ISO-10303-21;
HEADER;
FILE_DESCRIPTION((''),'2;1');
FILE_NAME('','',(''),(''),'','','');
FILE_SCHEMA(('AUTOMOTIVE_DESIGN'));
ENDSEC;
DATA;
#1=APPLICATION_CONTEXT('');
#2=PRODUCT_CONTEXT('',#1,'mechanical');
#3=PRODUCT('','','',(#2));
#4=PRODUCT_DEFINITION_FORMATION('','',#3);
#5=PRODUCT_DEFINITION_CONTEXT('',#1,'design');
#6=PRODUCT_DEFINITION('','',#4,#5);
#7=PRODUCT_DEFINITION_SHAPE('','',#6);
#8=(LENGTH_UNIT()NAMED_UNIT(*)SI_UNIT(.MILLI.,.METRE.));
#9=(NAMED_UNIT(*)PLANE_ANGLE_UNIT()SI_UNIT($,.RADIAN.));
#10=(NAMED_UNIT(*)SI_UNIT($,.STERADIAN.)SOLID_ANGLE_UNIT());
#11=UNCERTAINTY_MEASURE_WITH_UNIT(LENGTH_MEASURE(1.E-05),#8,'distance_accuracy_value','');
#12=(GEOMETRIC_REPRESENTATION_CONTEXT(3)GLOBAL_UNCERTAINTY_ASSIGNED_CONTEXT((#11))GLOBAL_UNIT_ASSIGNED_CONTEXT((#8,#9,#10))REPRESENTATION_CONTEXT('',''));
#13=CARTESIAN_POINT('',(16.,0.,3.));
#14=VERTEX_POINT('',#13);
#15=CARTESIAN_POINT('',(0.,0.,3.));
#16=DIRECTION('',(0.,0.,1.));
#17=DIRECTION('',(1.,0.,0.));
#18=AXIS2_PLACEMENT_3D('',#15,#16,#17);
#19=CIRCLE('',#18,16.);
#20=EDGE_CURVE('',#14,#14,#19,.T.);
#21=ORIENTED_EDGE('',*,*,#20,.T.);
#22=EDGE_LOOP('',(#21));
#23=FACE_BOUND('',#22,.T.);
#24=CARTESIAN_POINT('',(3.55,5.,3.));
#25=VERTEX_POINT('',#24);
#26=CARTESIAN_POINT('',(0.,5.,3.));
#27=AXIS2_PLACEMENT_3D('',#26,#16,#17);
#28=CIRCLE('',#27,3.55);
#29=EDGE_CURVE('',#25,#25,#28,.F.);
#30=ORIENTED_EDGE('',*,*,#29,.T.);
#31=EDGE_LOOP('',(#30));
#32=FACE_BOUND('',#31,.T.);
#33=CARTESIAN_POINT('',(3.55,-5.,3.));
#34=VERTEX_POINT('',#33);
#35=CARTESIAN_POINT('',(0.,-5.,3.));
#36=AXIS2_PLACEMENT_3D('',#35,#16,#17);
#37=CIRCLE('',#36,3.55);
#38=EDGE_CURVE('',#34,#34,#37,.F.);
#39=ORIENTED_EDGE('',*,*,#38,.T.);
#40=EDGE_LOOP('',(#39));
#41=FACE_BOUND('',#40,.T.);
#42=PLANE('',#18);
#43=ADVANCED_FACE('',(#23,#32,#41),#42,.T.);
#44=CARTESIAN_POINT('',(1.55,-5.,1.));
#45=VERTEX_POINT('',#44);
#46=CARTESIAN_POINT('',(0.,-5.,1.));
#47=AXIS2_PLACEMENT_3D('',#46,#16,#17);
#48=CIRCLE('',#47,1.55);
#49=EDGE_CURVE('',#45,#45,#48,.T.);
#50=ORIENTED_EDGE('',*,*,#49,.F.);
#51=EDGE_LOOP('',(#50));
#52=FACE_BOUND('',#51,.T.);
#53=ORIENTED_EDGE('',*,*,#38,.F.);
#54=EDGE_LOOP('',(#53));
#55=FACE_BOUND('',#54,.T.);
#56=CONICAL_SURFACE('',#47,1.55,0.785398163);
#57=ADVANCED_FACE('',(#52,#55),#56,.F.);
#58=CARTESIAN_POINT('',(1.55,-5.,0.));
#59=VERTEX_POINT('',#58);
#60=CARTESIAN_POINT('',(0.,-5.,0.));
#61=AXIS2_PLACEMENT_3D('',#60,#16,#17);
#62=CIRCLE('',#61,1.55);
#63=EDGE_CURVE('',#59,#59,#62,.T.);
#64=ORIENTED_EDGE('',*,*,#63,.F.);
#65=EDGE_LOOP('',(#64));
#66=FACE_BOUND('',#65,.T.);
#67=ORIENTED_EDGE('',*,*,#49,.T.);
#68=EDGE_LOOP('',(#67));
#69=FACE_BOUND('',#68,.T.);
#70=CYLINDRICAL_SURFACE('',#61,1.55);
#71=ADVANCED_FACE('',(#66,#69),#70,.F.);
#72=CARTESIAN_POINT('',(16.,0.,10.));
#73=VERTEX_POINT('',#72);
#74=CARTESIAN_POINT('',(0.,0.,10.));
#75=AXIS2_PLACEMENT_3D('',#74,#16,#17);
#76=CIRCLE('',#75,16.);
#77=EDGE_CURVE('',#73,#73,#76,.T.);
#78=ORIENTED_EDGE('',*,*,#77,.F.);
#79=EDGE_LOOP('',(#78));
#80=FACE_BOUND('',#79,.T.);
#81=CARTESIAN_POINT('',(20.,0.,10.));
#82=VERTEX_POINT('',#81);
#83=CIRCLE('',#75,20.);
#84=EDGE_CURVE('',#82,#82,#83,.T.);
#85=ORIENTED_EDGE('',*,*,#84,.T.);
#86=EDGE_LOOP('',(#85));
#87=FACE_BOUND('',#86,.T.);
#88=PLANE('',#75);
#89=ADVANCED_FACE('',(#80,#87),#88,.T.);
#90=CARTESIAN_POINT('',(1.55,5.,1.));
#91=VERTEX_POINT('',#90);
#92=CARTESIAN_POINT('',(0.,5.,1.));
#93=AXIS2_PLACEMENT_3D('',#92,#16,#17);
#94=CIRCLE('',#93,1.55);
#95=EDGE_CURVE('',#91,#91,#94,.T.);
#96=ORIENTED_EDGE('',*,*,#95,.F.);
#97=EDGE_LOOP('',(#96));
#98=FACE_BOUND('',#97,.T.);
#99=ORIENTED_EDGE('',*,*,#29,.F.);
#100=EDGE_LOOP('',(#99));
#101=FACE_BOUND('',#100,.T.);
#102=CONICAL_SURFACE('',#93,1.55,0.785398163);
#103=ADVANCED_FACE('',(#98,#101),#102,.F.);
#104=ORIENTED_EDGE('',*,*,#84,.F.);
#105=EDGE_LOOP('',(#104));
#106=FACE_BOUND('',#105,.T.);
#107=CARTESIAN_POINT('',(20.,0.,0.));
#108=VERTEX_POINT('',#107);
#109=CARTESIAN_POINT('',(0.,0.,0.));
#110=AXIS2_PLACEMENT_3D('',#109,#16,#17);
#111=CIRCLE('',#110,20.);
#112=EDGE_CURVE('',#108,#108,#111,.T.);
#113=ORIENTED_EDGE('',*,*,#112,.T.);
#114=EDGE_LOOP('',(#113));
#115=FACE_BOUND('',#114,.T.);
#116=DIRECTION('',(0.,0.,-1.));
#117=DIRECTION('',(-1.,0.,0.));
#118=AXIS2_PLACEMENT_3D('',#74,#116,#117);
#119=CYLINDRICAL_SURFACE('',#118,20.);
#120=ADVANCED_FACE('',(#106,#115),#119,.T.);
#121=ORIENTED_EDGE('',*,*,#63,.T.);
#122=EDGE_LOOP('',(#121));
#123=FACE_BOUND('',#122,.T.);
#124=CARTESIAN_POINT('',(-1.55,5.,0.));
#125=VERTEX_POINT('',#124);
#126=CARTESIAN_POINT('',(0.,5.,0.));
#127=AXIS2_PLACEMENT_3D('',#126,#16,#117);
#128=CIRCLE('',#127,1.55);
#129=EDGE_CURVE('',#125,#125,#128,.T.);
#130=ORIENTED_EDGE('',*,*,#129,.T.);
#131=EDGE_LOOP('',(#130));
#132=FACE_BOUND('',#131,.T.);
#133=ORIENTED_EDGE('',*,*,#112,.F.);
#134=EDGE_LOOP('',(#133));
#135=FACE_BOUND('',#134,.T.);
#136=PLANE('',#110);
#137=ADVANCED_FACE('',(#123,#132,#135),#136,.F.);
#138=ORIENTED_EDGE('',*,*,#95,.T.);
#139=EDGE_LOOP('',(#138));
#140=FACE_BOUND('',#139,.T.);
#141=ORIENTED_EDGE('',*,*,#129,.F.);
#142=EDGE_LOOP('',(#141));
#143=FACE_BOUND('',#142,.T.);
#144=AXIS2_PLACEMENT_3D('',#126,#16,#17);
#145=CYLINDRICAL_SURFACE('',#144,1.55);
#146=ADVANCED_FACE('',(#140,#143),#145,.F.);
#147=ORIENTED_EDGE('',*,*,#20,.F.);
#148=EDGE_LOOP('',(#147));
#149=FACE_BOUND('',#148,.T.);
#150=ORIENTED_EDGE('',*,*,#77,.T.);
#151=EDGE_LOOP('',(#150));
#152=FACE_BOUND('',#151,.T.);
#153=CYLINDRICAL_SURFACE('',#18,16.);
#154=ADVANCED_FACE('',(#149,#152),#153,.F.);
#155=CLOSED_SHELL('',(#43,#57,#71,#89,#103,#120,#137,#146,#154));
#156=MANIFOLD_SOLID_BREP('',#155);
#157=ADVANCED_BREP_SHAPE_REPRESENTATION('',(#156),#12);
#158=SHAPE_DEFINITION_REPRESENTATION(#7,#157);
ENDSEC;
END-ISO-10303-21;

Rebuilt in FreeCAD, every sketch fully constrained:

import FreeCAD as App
import Part
import Sketcher

V = App.Vector


def edges_at(feature, points):
    """Names of the edges that pass closest to the given points."""
    edges = feature.Shape.Edges
    near = lambda p: min(range(len(edges)), key=lambda i: edges[i].distToShape(Part.Vertex(*p))[0])
    return sorted({f"Edge{near(p) + 1}" for p in points})

doc = App.newDocument("Part")
body = doc.addObject("PartDesign::Body", "Body")

# Sketch on XY plane
sketch1 = doc.addObject("Sketcher::SketchObject", "Sketch")
body.addObject(sketch1)
sketch1.AttachmentSupport = (doc.XY_Plane, [""])
sketch1.MapMode = "FlatFace"
sketch1.addGeometry(Part.Circle(V(0, 0, 0), V(0, 0, 1), 20), False)
sketch1.addConstraint([
    Sketcher.Constraint("Coincident", 0, 3, -1, 1),
    Sketcher.Constraint("Diameter", 0, 40.0),
])
pad1 = doc.addObject("PartDesign::Pad", "Pad")
body.addObject(pad1)
pad1.Profile = sketch1
pad1.Length = 10

# Sketch on XY plane
sketch2 = doc.addObject("Sketcher::SketchObject", "Sketch001")
body.addObject(sketch2)
sketch2.AttachmentSupport = (doc.XY_Plane, [""])
sketch2.MapMode = "FlatFace"
sketch2.AttachmentOffset = App.Placement(V(0, 0, 10), App.Rotation())
sketch2.addGeometry(Part.Circle(V(0, 0, 0), V(0, 0, 1), 16), False)
sketch2.addConstraint([
    Sketcher.Constraint("Coincident", 0, 3, -1, 1),
    Sketcher.Constraint("Diameter", 0, 32.0),
])
pocket1 = doc.addObject("PartDesign::Pocket", "Pocket")
body.addObject(pocket1)
pocket1.Profile = sketch2
pocket1.Length = 7

# Sketch on XY plane
sketch3 = doc.addObject("Sketcher::SketchObject", "Sketch002")
body.addObject(sketch3)
sketch3.AttachmentSupport = (doc.XY_Plane, [""])
sketch3.MapMode = "FlatFace"
sketch3.AttachmentOffset = App.Placement(V(0, 0, 3), App.Rotation())
sketch3.addGeometry([
    Part.Circle(V(0, -5, 0), V(0, 0, 1), 1.6),
    Part.Circle(V(0, 5, 0), V(0, 0, 1), 1.6),
], False)
sketch3.addConstraint([
    Sketcher.Constraint("Equal", 0, 1),
    Sketcher.Constraint("Symmetric", 0, 3, 1, 3, -1, 1),
    Sketcher.Constraint("PointOnObject", 0, 3, -2),
    Sketcher.Constraint("Diameter", 0, 3.1),
    Sketcher.Constraint("DistanceY", 0, 3, -1, 1, 5.0),
])
pocket2 = doc.addObject("PartDesign::Pocket", "Pocket001")
body.addObject(pocket2)
pocket2.Profile = sketch3
pocket2.Type = "ThroughAll"
doc.recompute()

chamfer = doc.addObject("PartDesign::Chamfer", "Chamfer")
body.addObject(chamfer)
chamfer.Base = (pocket2, edges_at(pocket2, [(-1.55, -5, 3), (-1.55, 5, 3)]))
chamfer.Size = 2

doc.recompute()
